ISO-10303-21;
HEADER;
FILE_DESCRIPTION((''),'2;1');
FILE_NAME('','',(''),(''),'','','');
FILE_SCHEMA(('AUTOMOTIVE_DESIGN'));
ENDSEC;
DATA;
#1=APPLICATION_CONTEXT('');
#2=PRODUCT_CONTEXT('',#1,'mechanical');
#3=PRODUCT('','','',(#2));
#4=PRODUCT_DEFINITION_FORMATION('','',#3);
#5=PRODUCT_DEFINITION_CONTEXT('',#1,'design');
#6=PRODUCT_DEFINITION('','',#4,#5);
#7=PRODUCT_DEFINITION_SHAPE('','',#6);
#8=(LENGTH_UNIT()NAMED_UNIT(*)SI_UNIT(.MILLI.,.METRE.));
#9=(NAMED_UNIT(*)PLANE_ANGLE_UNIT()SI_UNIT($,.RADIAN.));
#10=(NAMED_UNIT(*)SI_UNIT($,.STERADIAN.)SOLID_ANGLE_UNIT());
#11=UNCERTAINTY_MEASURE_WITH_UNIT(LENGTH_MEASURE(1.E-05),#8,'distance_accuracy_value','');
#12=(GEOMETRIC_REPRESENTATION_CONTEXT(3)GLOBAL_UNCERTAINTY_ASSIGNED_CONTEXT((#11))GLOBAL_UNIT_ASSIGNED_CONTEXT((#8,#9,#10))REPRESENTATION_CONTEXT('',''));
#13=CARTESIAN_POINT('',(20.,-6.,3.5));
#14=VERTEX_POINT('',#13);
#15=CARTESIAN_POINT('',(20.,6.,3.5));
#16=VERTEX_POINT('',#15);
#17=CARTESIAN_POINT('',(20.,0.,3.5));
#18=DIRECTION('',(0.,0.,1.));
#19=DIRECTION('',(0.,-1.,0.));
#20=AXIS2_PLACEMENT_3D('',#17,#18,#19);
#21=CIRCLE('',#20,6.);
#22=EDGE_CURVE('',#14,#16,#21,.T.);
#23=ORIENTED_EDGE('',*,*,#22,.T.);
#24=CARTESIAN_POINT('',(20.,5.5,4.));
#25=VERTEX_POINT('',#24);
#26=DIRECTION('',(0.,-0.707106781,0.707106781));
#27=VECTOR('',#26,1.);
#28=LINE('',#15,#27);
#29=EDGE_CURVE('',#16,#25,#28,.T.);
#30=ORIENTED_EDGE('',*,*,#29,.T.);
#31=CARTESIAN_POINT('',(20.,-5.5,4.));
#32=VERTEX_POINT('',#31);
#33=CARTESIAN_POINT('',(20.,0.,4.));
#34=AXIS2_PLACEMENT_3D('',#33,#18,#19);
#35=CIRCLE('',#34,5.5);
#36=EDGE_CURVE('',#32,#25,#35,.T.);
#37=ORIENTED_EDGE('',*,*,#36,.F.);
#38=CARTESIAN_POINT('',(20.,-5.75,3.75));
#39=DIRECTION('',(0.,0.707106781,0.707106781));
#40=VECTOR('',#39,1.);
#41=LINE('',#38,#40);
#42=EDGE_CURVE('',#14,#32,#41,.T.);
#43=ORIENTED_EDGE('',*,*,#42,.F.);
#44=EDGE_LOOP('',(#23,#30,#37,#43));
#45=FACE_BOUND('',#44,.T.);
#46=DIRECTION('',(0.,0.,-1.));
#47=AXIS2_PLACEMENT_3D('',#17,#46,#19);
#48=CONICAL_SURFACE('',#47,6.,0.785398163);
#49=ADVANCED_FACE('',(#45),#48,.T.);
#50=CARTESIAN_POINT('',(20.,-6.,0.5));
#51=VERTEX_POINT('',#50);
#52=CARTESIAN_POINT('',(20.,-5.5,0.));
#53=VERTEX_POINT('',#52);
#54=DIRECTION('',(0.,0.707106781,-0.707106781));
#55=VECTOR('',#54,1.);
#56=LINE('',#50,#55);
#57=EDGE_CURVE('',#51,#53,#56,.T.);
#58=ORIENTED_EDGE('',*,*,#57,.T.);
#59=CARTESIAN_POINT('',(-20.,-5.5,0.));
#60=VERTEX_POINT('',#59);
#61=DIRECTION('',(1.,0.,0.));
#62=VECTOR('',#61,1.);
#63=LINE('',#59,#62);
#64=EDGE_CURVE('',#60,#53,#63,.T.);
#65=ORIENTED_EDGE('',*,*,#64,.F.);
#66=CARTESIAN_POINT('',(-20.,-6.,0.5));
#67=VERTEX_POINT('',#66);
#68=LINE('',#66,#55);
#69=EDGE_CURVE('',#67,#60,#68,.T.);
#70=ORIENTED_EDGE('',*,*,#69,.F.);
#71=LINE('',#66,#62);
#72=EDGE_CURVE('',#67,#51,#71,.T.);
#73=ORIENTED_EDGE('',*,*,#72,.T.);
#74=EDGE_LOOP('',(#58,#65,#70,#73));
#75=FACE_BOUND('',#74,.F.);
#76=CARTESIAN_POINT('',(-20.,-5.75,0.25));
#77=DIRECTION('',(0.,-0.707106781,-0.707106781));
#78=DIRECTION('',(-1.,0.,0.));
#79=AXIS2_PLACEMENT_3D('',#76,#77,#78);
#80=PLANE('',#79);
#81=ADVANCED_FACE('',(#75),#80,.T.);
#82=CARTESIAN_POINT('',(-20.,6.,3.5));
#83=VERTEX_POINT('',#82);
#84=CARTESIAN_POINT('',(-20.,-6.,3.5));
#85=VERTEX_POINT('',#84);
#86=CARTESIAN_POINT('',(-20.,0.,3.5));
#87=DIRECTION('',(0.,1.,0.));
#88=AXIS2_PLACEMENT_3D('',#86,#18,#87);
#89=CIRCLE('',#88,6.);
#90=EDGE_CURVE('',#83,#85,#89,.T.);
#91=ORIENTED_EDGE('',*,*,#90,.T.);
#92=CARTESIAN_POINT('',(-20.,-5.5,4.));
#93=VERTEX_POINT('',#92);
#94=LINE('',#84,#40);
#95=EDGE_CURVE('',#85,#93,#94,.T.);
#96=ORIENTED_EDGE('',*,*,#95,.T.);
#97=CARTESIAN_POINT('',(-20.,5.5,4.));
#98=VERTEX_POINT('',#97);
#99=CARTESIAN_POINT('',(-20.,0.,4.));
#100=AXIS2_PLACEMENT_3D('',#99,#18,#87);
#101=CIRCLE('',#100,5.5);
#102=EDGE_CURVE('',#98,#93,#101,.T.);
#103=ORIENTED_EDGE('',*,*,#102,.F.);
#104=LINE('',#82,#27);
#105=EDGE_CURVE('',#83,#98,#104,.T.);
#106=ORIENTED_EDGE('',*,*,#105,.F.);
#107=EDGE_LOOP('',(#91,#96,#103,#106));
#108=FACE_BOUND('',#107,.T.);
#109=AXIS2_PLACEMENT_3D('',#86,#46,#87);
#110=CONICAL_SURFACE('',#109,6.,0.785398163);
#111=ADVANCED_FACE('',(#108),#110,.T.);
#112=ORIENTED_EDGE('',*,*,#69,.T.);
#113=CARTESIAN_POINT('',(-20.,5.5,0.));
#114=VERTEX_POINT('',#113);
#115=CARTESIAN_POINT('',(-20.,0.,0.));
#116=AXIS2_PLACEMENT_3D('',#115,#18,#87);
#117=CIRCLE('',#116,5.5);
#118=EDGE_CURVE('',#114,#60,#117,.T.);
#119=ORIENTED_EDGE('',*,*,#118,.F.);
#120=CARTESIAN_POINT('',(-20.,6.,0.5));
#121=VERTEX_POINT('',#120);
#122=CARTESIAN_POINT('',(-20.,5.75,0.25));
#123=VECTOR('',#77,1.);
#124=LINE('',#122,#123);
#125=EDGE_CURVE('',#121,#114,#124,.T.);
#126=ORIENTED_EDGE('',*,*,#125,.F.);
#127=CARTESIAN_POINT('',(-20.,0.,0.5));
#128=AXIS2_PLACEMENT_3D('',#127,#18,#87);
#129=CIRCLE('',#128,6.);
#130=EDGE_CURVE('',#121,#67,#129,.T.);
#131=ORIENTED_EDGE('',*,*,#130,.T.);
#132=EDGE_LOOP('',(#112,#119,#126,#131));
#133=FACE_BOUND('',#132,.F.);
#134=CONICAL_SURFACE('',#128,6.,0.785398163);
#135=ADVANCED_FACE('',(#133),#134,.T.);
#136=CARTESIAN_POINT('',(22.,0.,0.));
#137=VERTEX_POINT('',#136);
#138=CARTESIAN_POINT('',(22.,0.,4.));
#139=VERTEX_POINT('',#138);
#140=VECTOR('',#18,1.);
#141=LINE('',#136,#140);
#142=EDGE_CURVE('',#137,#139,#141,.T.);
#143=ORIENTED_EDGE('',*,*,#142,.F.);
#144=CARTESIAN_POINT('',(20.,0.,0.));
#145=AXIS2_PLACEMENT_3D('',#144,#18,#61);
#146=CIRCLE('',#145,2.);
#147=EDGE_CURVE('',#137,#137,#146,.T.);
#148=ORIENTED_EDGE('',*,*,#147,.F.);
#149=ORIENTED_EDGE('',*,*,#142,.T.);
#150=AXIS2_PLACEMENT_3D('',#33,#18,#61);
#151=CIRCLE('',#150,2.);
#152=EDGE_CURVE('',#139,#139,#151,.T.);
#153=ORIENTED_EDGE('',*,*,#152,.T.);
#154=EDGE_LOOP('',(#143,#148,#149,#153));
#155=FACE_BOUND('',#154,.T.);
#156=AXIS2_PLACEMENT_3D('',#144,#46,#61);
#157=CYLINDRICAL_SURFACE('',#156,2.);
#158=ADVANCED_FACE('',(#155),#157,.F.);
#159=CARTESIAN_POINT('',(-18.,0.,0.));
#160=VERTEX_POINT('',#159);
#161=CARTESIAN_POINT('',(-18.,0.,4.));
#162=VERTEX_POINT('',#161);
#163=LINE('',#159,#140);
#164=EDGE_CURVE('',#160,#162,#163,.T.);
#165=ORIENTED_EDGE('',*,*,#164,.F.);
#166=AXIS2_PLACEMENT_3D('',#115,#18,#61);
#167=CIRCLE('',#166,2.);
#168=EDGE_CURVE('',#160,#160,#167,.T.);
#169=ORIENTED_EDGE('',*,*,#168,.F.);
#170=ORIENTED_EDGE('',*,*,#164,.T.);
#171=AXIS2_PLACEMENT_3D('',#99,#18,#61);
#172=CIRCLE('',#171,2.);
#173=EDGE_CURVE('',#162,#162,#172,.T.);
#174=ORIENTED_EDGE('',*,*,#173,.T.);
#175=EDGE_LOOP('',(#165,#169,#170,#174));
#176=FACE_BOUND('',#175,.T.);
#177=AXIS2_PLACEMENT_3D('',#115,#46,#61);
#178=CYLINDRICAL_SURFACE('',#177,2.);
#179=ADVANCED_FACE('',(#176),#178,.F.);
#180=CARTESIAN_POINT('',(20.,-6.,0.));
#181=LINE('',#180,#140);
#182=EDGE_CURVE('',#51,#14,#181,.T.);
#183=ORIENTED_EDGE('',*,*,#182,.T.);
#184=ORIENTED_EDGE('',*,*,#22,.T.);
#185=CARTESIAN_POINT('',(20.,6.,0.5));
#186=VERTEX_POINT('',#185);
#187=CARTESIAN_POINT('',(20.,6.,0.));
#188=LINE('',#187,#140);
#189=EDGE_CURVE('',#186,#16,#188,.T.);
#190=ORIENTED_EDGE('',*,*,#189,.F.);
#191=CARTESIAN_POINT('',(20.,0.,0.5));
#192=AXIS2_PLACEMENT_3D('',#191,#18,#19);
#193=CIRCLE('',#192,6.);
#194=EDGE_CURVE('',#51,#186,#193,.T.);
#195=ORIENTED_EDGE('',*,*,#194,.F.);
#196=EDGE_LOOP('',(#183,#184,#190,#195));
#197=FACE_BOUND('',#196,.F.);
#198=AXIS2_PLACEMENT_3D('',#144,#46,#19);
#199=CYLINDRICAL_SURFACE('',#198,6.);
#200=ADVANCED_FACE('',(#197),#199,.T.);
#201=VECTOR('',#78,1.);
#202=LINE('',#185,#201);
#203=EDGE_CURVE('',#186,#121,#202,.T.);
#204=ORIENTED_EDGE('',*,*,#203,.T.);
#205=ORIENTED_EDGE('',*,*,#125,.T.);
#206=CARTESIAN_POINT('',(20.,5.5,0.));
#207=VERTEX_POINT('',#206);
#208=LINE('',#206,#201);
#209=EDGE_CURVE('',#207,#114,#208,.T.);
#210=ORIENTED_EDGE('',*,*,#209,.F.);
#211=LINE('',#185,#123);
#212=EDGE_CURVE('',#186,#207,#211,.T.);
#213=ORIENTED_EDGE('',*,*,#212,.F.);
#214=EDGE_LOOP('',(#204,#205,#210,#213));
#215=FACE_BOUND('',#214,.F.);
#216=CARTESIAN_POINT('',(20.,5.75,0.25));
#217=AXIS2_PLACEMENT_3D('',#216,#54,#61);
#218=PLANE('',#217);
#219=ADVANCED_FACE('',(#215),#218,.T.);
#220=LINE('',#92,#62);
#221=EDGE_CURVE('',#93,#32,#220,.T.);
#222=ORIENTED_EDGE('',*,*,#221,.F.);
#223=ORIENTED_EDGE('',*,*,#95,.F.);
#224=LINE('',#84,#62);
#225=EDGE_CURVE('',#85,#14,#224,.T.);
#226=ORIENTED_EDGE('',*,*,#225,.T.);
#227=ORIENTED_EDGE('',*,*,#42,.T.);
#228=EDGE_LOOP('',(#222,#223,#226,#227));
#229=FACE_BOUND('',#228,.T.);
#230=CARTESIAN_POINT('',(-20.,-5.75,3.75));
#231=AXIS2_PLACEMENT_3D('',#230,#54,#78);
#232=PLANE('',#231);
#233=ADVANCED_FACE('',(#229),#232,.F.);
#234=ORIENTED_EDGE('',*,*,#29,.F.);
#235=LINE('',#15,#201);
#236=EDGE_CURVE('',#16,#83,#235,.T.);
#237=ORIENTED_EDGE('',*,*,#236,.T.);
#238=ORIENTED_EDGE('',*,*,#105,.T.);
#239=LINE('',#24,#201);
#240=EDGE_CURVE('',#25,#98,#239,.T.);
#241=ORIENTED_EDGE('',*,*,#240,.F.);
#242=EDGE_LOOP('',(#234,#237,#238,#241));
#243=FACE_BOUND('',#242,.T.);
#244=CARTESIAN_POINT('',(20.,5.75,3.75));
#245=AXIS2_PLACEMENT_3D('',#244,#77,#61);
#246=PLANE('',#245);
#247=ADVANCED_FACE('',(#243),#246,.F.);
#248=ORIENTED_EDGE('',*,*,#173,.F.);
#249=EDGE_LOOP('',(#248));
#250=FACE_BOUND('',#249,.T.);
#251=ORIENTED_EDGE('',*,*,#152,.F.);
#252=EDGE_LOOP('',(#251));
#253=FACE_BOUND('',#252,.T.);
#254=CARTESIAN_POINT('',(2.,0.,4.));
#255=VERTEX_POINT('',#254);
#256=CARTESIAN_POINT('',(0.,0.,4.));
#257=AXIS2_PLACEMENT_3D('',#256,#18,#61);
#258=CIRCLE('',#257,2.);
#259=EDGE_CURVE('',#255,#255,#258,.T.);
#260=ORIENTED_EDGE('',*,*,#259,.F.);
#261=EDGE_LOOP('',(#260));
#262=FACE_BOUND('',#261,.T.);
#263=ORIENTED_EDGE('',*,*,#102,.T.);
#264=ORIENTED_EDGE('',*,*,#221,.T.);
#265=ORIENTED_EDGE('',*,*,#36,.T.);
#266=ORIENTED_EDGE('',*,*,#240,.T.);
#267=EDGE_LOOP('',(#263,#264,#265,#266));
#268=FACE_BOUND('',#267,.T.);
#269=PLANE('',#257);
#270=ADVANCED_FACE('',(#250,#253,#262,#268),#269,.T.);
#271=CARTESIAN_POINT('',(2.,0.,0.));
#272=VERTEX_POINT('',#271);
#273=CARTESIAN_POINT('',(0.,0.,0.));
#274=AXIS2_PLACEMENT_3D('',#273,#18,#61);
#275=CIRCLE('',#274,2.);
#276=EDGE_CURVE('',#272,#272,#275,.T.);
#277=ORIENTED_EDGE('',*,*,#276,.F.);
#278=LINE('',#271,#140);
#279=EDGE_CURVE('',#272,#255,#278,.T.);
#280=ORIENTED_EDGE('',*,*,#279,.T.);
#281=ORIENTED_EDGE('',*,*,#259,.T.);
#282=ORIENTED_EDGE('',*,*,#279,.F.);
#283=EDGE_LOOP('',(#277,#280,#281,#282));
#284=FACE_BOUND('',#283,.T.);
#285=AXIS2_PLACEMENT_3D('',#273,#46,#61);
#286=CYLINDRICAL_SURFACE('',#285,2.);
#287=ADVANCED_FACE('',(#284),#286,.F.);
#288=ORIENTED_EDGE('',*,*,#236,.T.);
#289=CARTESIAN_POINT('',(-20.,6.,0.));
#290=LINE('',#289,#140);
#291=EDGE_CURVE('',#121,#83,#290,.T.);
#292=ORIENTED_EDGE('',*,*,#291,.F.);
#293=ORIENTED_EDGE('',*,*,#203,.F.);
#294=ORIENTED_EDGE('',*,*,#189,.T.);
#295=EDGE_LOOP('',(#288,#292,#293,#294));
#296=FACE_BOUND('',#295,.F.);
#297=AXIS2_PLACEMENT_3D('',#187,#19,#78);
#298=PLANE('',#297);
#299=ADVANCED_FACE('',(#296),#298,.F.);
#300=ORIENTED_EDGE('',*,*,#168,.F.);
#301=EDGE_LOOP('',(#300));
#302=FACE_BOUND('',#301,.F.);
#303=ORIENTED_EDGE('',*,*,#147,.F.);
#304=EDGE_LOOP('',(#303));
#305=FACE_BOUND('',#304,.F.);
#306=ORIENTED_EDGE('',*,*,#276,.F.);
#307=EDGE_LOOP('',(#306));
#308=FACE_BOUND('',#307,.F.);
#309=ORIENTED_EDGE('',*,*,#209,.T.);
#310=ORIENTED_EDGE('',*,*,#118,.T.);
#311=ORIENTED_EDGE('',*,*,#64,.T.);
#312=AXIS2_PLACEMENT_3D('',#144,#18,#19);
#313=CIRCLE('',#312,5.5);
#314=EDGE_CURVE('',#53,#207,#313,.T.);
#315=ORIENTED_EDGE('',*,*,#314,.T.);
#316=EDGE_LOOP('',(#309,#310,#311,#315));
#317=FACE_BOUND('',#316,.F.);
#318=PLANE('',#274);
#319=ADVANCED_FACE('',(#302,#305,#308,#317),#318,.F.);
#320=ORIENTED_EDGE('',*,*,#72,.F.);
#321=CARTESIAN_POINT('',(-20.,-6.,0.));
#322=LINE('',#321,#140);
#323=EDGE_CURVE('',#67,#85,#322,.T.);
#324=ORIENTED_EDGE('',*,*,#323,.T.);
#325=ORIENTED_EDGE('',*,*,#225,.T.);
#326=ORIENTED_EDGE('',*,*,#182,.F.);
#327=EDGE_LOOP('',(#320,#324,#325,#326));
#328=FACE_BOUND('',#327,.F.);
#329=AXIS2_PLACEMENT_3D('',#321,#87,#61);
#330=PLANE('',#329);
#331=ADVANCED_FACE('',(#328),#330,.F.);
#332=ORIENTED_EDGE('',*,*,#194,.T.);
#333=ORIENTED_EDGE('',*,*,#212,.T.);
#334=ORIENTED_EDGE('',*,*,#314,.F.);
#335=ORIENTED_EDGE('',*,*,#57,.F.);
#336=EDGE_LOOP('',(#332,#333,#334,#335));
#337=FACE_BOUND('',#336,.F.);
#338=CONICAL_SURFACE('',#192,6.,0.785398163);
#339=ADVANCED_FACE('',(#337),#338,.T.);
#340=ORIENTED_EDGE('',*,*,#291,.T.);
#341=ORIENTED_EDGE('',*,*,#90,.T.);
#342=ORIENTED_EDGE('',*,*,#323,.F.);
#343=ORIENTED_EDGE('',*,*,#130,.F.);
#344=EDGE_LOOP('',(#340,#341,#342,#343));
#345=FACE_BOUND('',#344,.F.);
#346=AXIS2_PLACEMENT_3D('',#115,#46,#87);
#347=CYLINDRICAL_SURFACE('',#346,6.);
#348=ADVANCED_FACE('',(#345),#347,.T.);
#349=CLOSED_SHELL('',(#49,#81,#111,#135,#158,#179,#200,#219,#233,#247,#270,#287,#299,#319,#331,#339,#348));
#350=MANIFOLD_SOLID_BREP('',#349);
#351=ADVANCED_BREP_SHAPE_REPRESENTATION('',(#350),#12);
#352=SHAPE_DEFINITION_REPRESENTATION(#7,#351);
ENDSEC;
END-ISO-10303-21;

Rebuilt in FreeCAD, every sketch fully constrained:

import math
import FreeCAD as App
import Part
import Sketcher

V = App.Vector


def edges_at(feature, points):
    """Names of the edges that pass closest to the given points."""
    edges = feature.Shape.Edges
    near = lambda p: min(range(len(edges)), key=lambda i: edges[i].distToShape(Part.Vertex(*p))[0])
    return sorted({f"Edge{near(p) + 1}" for p in points})

doc = App.newDocument("Part")
body = doc.addObject("PartDesign::Body", "Body")

# Sketch on XY plane
sketch1 = doc.addObject("Sketcher::SketchObject", "Sketch")
body.addObject(sketch1)
sketch1.AttachmentSupport = (doc.XY_Plane, [""])
sketch1.MapMode = "FlatFace"
sketch1.addGeometry([
    Part.LineSegment(V(20, 6, 0), V(-20, 6, 0)),  # 0
    Part.ArcOfCircle(Part.Circle(V(-20, 0, 0), V(0, 0, 1), 6), math.radians(90), math.radians(270)),  # 1
    Part.LineSegment(V(-20, -6, 0), V(20, -6, 0)),  # 2
    Part.ArcOfCircle(Part.Circle(V(20, 0, 0), V(0, 0, 1), 6), math.radians(-90), math.radians(90)),  # 3
    Part.Circle(V(-20, 0, 0), V(0, 0, 1), 2),  # 4
    Part.Circle(V(0, 0, 0), V(0, 0, 1), 2),  # 5
    Part.Circle(V(20, 0, 0), V(0, 0, 1), 2),  # 6
], False)
sketch1.addConstraint([
    Sketcher.Constraint("Tangent", 0, 2, 1, 1),
    Sketcher.Constraint("Tangent", 1, 2, 2, 1),
    Sketcher.Constraint("Tangent", 2, 2, 3, 1),
    Sketcher.Constraint("Tangent", 3, 2, 0, 1),
    Sketcher.Constraint("Horizontal", 0),
    Sketcher.Constraint("Horizontal", 2),
    Sketcher.Constraint("Coincident", 5, 3, -1, 1),
    Sketcher.Constraint("Coincident", 4, 3, 1, 3),
    Sketcher.Constraint("Coincident", 6, 3, 3, 3),
    Sketcher.Constraint("Equal", 4, 5),
    Sketcher.Constraint("Equal", 5, 6),
    Sketcher.Constraint("Symmetric", 1, 3, 3, 3, -1, 1),
    Sketcher.Constraint("Diameter", 4, 4.0),
    Sketcher.Constraint("Radius", 1, 6.0),
    Sketcher.Constraint("DistanceX", 0, 2, 0, 1, 40.0),
])
pad1 = doc.addObject("PartDesign::Pad", "Pad")
body.addObject(pad1)
pad1.Profile = sketch1
pad1.Length = 4
doc.recompute()

chamfer = doc.addObject("PartDesign::Chamfer", "Chamfer")
body.addObject(chamfer)
chamfer.Base = (pad1, edges_at(pad1, [(-26, 0, 4), (26, 0, 0)]))
chamfer.Size = 0.5

doc.recompute()
